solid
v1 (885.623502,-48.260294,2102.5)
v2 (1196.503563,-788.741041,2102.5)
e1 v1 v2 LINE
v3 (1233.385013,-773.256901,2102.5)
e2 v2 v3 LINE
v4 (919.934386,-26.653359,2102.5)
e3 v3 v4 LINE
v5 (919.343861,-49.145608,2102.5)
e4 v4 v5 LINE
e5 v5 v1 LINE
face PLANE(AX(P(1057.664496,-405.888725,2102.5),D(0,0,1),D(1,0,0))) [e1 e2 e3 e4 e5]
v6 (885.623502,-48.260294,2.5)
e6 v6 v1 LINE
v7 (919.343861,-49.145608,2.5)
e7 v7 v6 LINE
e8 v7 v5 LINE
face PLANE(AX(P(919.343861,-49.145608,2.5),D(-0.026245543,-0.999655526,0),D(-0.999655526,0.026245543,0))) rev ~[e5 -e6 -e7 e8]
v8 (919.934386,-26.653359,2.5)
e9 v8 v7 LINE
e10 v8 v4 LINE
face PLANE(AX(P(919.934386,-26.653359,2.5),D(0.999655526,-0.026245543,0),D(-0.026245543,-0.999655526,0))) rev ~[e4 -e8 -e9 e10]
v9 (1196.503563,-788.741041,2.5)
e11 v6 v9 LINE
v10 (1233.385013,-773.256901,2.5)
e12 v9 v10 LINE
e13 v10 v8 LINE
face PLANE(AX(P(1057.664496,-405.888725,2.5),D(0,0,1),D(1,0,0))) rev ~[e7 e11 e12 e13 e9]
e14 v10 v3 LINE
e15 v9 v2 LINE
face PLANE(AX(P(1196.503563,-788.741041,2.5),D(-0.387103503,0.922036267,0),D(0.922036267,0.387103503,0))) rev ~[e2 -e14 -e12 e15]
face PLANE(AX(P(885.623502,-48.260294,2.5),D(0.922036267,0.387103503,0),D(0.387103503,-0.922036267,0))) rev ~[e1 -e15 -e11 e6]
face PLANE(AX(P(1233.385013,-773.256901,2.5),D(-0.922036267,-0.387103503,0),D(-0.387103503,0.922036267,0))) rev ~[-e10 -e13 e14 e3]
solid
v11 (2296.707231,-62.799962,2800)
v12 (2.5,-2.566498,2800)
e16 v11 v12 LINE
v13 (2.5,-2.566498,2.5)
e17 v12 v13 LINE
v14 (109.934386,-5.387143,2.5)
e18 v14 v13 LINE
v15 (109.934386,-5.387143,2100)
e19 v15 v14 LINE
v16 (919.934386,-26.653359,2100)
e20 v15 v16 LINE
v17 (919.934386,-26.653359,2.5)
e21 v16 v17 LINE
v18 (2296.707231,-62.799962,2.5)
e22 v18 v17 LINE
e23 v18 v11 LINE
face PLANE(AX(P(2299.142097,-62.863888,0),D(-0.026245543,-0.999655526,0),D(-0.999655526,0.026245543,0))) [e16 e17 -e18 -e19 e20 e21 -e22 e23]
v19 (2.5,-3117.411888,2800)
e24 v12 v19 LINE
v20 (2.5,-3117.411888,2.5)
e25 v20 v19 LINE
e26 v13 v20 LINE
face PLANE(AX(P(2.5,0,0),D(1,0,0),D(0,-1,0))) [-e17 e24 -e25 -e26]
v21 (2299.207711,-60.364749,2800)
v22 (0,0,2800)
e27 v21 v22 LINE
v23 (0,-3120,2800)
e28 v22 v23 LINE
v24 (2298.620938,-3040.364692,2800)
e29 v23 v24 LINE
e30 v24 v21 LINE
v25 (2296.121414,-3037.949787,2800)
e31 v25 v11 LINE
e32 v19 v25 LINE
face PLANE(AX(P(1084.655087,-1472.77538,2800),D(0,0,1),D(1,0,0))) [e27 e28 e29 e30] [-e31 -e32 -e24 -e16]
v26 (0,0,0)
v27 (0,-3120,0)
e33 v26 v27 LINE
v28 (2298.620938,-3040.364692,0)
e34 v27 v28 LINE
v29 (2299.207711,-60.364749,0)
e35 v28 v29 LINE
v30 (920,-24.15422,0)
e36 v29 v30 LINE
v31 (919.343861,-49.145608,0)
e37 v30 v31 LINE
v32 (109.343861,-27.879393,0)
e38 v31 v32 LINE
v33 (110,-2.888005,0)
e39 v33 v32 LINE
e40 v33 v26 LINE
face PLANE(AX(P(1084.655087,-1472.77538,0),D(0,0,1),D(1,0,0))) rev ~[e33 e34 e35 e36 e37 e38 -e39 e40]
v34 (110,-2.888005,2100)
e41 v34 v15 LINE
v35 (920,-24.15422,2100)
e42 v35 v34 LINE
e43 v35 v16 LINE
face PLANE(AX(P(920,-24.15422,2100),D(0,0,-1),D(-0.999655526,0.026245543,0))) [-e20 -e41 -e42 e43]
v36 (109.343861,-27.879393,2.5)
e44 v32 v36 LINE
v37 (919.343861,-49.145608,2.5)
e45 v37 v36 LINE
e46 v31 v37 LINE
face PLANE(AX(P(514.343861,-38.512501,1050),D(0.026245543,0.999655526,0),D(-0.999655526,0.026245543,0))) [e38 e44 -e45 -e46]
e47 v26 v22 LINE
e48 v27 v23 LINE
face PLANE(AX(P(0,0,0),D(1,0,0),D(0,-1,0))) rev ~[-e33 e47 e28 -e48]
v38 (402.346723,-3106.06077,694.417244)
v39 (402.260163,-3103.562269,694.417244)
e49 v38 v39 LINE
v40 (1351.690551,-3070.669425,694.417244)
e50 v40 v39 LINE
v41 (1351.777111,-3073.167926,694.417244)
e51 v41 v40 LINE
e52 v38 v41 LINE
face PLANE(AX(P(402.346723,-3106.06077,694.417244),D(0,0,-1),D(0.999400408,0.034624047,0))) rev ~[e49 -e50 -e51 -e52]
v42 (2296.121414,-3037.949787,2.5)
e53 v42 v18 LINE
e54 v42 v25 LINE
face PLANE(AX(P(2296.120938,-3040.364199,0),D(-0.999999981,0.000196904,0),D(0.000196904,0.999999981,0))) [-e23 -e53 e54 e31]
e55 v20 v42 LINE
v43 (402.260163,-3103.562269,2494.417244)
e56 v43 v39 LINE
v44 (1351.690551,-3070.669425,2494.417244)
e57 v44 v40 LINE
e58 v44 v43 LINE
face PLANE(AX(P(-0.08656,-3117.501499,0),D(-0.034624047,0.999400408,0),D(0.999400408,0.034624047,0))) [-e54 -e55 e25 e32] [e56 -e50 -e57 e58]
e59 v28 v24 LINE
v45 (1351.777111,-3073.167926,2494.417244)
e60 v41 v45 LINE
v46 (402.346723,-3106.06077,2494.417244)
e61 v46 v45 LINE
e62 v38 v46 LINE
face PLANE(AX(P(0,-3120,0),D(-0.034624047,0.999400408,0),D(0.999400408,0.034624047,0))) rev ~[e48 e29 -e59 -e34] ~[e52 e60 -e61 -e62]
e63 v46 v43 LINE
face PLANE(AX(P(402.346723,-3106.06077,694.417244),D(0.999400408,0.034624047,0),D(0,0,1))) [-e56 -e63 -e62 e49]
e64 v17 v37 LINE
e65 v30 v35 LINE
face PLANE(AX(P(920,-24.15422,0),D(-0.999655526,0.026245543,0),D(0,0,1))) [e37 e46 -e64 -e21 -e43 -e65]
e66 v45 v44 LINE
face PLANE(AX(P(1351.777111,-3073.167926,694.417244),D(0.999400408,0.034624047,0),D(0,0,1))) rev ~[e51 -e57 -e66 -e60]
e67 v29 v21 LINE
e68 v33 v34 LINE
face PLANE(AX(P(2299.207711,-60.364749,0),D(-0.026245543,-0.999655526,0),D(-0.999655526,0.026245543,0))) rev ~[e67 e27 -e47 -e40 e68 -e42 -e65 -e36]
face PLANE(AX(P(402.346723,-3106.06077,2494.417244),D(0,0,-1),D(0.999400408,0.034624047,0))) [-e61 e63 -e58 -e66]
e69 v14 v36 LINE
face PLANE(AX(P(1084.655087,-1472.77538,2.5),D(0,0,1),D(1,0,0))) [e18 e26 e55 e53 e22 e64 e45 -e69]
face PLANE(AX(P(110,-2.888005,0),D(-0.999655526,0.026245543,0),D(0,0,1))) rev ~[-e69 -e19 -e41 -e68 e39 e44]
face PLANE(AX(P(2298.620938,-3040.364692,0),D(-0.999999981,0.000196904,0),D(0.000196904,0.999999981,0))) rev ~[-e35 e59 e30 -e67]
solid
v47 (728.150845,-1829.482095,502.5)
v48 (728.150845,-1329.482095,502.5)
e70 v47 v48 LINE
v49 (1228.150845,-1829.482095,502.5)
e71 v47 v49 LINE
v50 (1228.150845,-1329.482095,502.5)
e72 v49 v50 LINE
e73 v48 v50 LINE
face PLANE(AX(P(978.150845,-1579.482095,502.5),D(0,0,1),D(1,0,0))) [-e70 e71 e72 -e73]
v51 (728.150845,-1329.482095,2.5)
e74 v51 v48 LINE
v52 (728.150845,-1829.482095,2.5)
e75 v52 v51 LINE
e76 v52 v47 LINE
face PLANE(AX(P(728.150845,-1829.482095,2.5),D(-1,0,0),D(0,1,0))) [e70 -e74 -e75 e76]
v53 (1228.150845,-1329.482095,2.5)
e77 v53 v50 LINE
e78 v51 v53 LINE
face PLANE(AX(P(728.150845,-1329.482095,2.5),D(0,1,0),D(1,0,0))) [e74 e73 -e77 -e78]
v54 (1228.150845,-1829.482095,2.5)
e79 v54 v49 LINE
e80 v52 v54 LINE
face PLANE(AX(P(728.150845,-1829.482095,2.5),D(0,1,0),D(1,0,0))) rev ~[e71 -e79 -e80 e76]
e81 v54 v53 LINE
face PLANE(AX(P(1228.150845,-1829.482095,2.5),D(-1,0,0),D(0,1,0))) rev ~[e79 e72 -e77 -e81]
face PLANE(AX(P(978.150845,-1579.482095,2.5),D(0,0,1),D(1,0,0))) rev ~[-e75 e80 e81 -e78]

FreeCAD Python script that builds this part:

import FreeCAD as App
import Part
import Sketcher

V = App.Vector


def faces_at(feature, points):
    """Names of the faces that lie closest to the given points."""
    faces = feature.Shape.Faces
    near = lambda p: min(range(len(faces)), key=lambda i: faces[i].distToShape(Part.Vertex(*p))[0])
    return sorted({f"Face{near(p) + 1}" for p in points})


def add_polygon(sketch, points):
    """Adds a closed chain of lines whose ends are joined by coincident constraints."""
    first, n = sketch.GeometryCount, len(points)
    for a, b in zip(points, points[1:] + points[:1]):
        sketch.addGeometry(Part.LineSegment(App.Vector(*a, 0), App.Vector(*b, 0)), False)
    for i in range(n):
        sketch.addConstraint(Sketcher.Constraint("Coincident", first + i, 2, first + (i + 1) % n, 1))

doc = App.newDocument("Part")
body = doc.addObject("PartDesign::Body", "Body")

sketch1 = body.newObject("Sketcher::SketchObject", "Sketch")
sketch1.AttachmentSupport = (doc.getObject("XY_Plane"), [""])
sketch1.MapMode = "FlatFace"
add_polygon(sketch1, [(0, 0), (0, -3120), (2299, -3040), (2299, -60)])
sketch1.addConstraint(Sketcher.Constraint("Vertical", 0))
sketch1.addConstraint(Sketcher.Constraint("Coincident", 3, 2, -1, 1))
sketch1.addConstraint(Sketcher.Constraint("Equal", 1, 3))
sketch1.addConstraint(Sketcher.Constraint("DistanceY", 0, 2, 0, 1, 3120.0))
sketch1.addConstraint(Sketcher.Constraint("Distance", 1, 2300.0))
sketch1.addConstraint(Sketcher.Constraint("Distance", 2, 2980.0))
sketch1.addConstraint(Sketcher.Constraint("DistanceX", -1, 1, 1, 2, 2298.620938))
pad1 = body.newObject("PartDesign::Pad", "Pad")
pad1.Profile = sketch1
pad1.Length = 2800
doc.recompute()

thickness = body.newObject("PartDesign::Thickness", "Thickness")
thickness.Base = (pad1, faces_at(pad1, [(1149.604, -1560, 2800)]))
thickness.Value = 2.5
thickness.Reversed = True
thickness.Join = "Arc"

sketch2 = body.newObject("Sketcher::SketchObject", "Sketch001")
sketch2.Placement = App.Placement(V(0, 0, 0), App.Rotation(V(-0.999655526, 0.026245543, 0), V(0, 0, 0.999999999), V(0.026245543, 0.999655526, 0), "ZXY"))
add_polygon(sketch2, [(-920, 2100), (-920, 0), (-110, 0), (-110, 2100)])
sketch2.addConstraint(Sketcher.Constraint("Vertical", 0))
sketch2.addConstraint(Sketcher.Constraint("Horizontal", 1))
sketch2.addConstraint(Sketcher.Constraint("Vertical", 2))
sketch2.addConstraint(Sketcher.Constraint("Horizontal", 3))
sketch2.addConstraint(Sketcher.Constraint("PointOnObject", 0, 2, -1))
sketch2.addConstraint(Sketcher.Constraint("DistanceX", 1, 1, 1, 2, 810.279119))
sketch2.addConstraint(Sketcher.Constraint("DistanceY", 0, 2, 0, 1, 2099.999997))
sketch2.addConstraint(Sketcher.Constraint("DistanceX", 0, 2, -1, 1, 920.317024))
pocket1 = body.newObject("PartDesign::Pocket", "Pocket")
pocket1.Profile = sketch2
pocket1.Length = 25

sketch3 = body.newObject("Sketcher::SketchObject", "Sketch002")
sketch3.Placement = App.Placement(V(107.962255, -3116.259667, 0), App.Rotation(V(0.999400408, 0.034624047, 0), V(0, 0, 1), V(0.034624047, -0.999400408, 0), "ZXY"))
add_polygon(sketch3, [(295, 2494), (295, 694), (1245, 694), (1245, 2494)])
sketch3.addConstraint(Sketcher.Constraint("Vertical", 0))
sketch3.addConstraint(Sketcher.Constraint("Horizontal", 1))
sketch3.addConstraint(Sketcher.Constraint("Vertical", 2))
sketch3.addConstraint(Sketcher.Constraint("Horizontal", 3))
sketch3.addConstraint(Sketcher.Constraint("DistanceX", 1, 1, 1, 2, 950.0))
sketch3.addConstraint(Sketcher.Constraint("DistanceY", 0, 2, 0, 1, 1800.000001))
sketch3.addConstraint(Sketcher.Constraint("DistanceX", -1, 1, 0, 2, 294.561085))
sketch3.addConstraint(Sketcher.Constraint("DistanceY", -1, 1, 0, 2, 694.417244))
pocket2 = body.newObject("PartDesign::Pocket", "Pocket001")
pocket2.Profile = sketch3
pocket2.Length = 25
body2 = doc.addObject("PartDesign::Body", "Body001")

sketch4 = body2.newObject("Sketcher::SketchObject", "Sketch003")
sketch4.AttachmentSupport = (doc.getObject("XY_Plane001"), [""])
sketch4.MapMode = "FlatFace"
sketch4.AttachmentOffset = App.Placement(V(0, 0, 2.5), App.Rotation())
add_polygon(sketch4, [(1233, -773), (920, -27), (919, -49), (886, -48), (1197, -789)])
sketch4.addConstraint(Sketcher.Constraint("Perpendicular", 1, 2))
sketch4.addConstraint(Sketcher.Constraint("Parallel", 0, 3))
sketch4.addConstraint(Sketcher.Constraint("Perpendicular", 3, 4))
sketch4.addConstraint(Sketcher.Constraint("Distance", 4, 40.0))
sketch4.addConstraint(Sketcher.Constraint("Distance", 1, 22.5))
sketch4.addConstraint(Sketcher.Constraint("DistanceX", -1, 1, 2, 2, 885.623502))
sketch4.addConstraint(Sketcher.Constraint("DistanceY", 4, 2, -1, 1, 773.256901))
sketch4.addConstraint(Sketcher.Constraint("DistanceX", 1, 2, 3, 2, 277.159701))
sketch4.addConstraint(Sketcher.Constraint("Distance", 0, 809.733379))
sketch4.addConstraint(Sketcher.Constraint("Distance", 2, 33.731979))
pad2 = body2.newObject("PartDesign::Pad", "Pad001")
pad2.Profile = sketch4
pad2.Length = 2100
body3 = doc.addObject("PartDesign::Body", "Body002")

sketch5 = body3.newObject("Sketcher::SketchObject", "Sketch004")
sketch5.AttachmentSupport = (doc.getObject("XY_Plane002"), [""])
sketch5.MapMode = "FlatFace"
sketch5.AttachmentOffset = App.Placement(V(0, 0, 2.5), App.Rotation())
add_polygon(sketch5, [(728, -1329), (728, -1829), (1228, -1829), (1228, -1329)])
sketch5.addConstraint(Sketcher.Constraint("Vertical", 0))
sketch5.addConstraint(Sketcher.Constraint("Horizontal", 1))
sketch5.addConstraint(Sketcher.Constraint("Vertical", 2))
sketch5.addConstraint(Sketcher.Constraint("Horizontal", 3))
sketch5.addConstraint(Sketcher.Constraint("Equal", 3, 0))
sketch5.addConstraint(Sketcher.Constraint("DistanceX", 1, 1, 1, 2, 500.0))
sketch5.addConstraint(Sketcher.Constraint("DistanceX", -1, 1, 0, 2, 728.150845))
sketch5.addConstraint(Sketcher.Constraint("DistanceY", 0, 2, -1, 1, 1829.482095))
pad3 = body3.newObject("PartDesign::Pad", "Pad002")
pad3.Profile = sketch5
pad3.Length = 500

doc.recompute()
